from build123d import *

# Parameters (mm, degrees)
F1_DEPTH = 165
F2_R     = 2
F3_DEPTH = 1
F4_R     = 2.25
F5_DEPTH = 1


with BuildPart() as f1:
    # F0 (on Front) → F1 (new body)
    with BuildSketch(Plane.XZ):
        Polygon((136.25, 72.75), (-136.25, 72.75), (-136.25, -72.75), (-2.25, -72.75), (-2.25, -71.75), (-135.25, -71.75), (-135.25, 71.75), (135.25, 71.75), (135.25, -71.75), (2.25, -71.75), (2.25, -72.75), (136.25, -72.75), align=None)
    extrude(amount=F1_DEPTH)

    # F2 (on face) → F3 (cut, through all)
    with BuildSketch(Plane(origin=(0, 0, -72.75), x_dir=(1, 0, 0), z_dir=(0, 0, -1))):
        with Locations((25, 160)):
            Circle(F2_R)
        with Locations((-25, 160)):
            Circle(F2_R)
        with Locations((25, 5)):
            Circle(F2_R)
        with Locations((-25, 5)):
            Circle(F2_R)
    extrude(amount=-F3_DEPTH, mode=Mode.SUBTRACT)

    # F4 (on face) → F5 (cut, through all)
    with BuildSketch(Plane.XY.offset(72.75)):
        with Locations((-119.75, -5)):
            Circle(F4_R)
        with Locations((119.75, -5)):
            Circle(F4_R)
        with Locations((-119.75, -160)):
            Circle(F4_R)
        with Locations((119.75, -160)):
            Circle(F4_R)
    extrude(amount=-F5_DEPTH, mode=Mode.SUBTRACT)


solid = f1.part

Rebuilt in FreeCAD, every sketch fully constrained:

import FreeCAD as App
import Part
import Sketcher

doc = App.newDocument("Part")
body = doc.addObject("PartDesign::Body", "Body")

# Sketch on XZ plane
sketch1 = doc.addObject("Sketcher::SketchObject", "Sketch")
body.addObject(sketch1)
sketch1.AttachmentSupport = (doc.XZ_Plane, [""])
sketch1.MapMode = "FlatFace"
sketch1.addGeometry(Part.LineSegment(App.Vector(136.2, 72.8, 0), App.Vector(-136.2, 72.8, 0)), False)
sketch1.addGeometry(Part.LineSegment(App.Vector(-136.2, 72.8, 0), App.Vector(-136.2, -72.8, 0)), False)
sketch1.addGeometry(Part.LineSegment(App.Vector(-136.2, -72.8, 0), App.Vector(-2.2, -72.8, 0)), False)
sketch1.addGeometry(Part.LineSegment(App.Vector(-2.2, -72.8, 0), App.Vector(-2.2, -71.8, 0)), False)
sketch1.addGeometry(Part.LineSegment(App.Vector(-2.2, -71.8, 0), App.Vector(-135.2, -71.8, 0)), False)
sketch1.addGeometry(Part.LineSegment(App.Vector(-135.2, -71.8, 0), App.Vector(-135.2, 71.8, 0)), False)
sketch1.addGeometry(Part.LineSegment(App.Vector(-135.2, 71.8, 0), App.Vector(135.2, 71.8, 0)), False)
sketch1.addGeometry(Part.LineSegment(App.Vector(135.2, 71.8, 0), App.Vector(135.2, -71.8, 0)), False)
sketch1.addGeometry(Part.LineSegment(App.Vector(135.2, -71.8, 0), App.Vector(2.2, -71.8, 0)), False)
sketch1.addGeometry(Part.LineSegment(App.Vector(2.2, -71.8, 0), App.Vector(2.2, -72.8, 0)), False)
sketch1.addGeometry(Part.LineSegment(App.Vector(2.2, -72.8, 0), App.Vector(136.2, -72.8, 0)), False)
sketch1.addGeometry(Part.LineSegment(App.Vector(136.2, -72.8, 0), App.Vector(136.2, 72.8, 0)), False)
sketch1.addConstraint(Sketcher.Constraint("Coincident", 0, 2, 1, 1))
sketch1.addConstraint(Sketcher.Constraint("Coincident", 1, 2, 2, 1))
sketch1.addConstraint(Sketcher.Constraint("Coincident", 2, 2, 3, 1))
sketch1.addConstraint(Sketcher.Constraint("Coincident", 3, 2, 4, 1))
sketch1.addConstraint(Sketcher.Constraint("Coincident", 4, 2, 5, 1))
sketch1.addConstraint(Sketcher.Constraint("Coincident", 5, 2, 6, 1))
sketch1.addConstraint(Sketcher.Constraint("Coincident", 6, 2, 7, 1))
sketch1.addConstraint(Sketcher.Constraint("Coincident", 7, 2, 8, 1))
sketch1.addConstraint(Sketcher.Constraint("Coincident", 8, 2, 9, 1))
sketch1.addConstraint(Sketcher.Constraint("Coincident", 9, 2, 10, 1))
sketch1.addConstraint(Sketcher.Constraint("Coincident", 10, 2, 11, 1))
sketch1.addConstraint(Sketcher.Constraint("Coincident", 11, 2, 0, 1))
sketch1.addConstraint(Sketcher.Constraint("Horizontal", 0))
sketch1.addConstraint(Sketcher.Constraint("Vertical", 1))
sketch1.addConstraint(Sketcher.Constraint("Horizontal", 2))
sketch1.addConstraint(Sketcher.Constraint("Vertical", 3))
sketch1.addConstraint(Sketcher.Constraint("Horizontal", 4))
sketch1.addConstraint(Sketcher.Constraint("Vertical", 5))
sketch1.addConstraint(Sketcher.Constraint("Horizontal", 6))
sketch1.addConstraint(Sketcher.Constraint("Vertical", 7))
sketch1.addConstraint(Sketcher.Constraint("Horizontal", 8))
sketch1.addConstraint(Sketcher.Constraint("Vertical", 9))
sketch1.addConstraint(Sketcher.Constraint("Horizontal", 10))
sketch1.addConstraint(Sketcher.Constraint("Vertical", 11))
sketch1.addConstraint(Sketcher.Constraint("Symmetric", 4, 2, 6, 2, -1, 1))
sketch1.addConstraint(Sketcher.Constraint("Symmetric", 0, 2, 10, 2, -1, 1))
sketch1.addConstraint(Sketcher.Constraint("Symmetric", 3, 2, 8, 2, -2))
sketch1.addConstraint(Sketcher.Constraint("Horizontal", 2, 2, 9, 2))
sketch1.addConstraint(Sketcher.Constraint("DistanceX", 2, 1, 2, 2, 134.0))
sketch1.addConstraint(Sketcher.Constraint("DistanceX", 4, 2, 4, 1, 133.0))
sketch1.addConstraint(Sketcher.Constraint("DistanceY", 3, 1, 3, 2, 1.0))
sketch1.addConstraint(Sketcher.Constraint("DistanceX", 0, 2, 0, 1, 272.5))
sketch1.addConstraint(Sketcher.Constraint("DistanceY", 1, 2, 1, 1, 145.5))
pad1 = doc.addObject("PartDesign::Pad", "Pad")
body.addObject(pad1)
pad1.Profile = sketch1
pad1.Length = 165

# Sketch on XY plane
sketch2 = doc.addObject("Sketcher::SketchObject", "Sketch001")
body.addObject(sketch2)
sketch2.AttachmentSupport = (doc.XY_Plane, [""])
sketch2.MapMode = "FlatFace"
sketch2.AttachmentOffset = App.Placement(App.Vector(0, 0, -72.75), App.Rotation())
sketch2.addGeometry(Part.Circle(App.Vector(25, -160, 0), App.Vector(0, 0, 1), 2), False)
sketch2.addGeometry(Part.Circle(App.Vector(-25, -160, 0), App.Vector(0, 0, 1), 2), False)
sketch2.addGeometry(Part.Circle(App.Vector(25, -5, 0), App.Vector(0, 0, 1), 2), False)
sketch2.addGeometry(Part.Circle(App.Vector(-25, -5, 0), App.Vector(0, 0, 1), 2), False)
sketch2.addConstraint(Sketcher.Constraint("Equal", 0, 1))
sketch2.addConstraint(Sketcher.Constraint("Equal", 1, 2))
sketch2.addConstraint(Sketcher.Constraint("Equal", 2, 3))
sketch2.addConstraint(Sketcher.Constraint("Symmetric", 0, 3, 1, 3, -2))
sketch2.addConstraint(Sketcher.Constraint("Symmetric", 2, 3, 3, 3, -2))
sketch2.addConstraint(Sketcher.Constraint("Vertical", 0, 3, 2, 3))
sketch2.addConstraint(Sketcher.Constraint("Diameter", 0, 4.0))
sketch2.addConstraint(Sketcher.Constraint("DistanceX", -1, 1, 0, 3, 25.0))
sketch2.addConstraint(Sketcher.Constraint("DistanceY", 0, 3, -1, 1, 160.0))
sketch2.addConstraint(Sketcher.Constraint("DistanceY", 2, 3, -1, 1, 5.0))
pocket1 = doc.addObject("PartDesign::Pocket", "Pocket")
body.addObject(pocket1)
pocket1.Profile = sketch2
pocket1.Length = 1
pocket1.Reversed = True

# Sketch on XY plane
sketch3 = doc.addObject("Sketcher::SketchObject", "Sketch002")
body.addObject(sketch3)
sketch3.AttachmentSupport = (doc.XY_Plane, [""])
sketch3.MapMode = "FlatFace"
sketch3.AttachmentOffset = App.Placement(App.Vector(0, 0, 72.75), App.Rotation())
sketch3.addGeometry(Part.Circle(App.Vector(-119.8, -5, 0), App.Vector(0, 0, 1), 2.2), False)
sketch3.addGeometry(Part.Circle(App.Vector(119.8, -5, 0), App.Vector(0, 0, 1), 2.2), False)
sketch3.addGeometry(Part.Circle(App.Vector(-119.8, -160, 0), App.Vector(0, 0, 1), 2.2), False)
sketch3.addGeometry(Part.Circle(App.Vector(119.8, -160, 0), App.Vector(0, 0, 1), 2.2), False)
sketch3.addConstraint(Sketcher.Constraint("Equal", 0, 1))
sketch3.addConstraint(Sketcher.Constraint("Equal", 1, 2))
sketch3.addConstraint(Sketcher.Constraint("Equal", 2, 3))
sketch3.addConstraint(Sketcher.Constraint("Symmetric", 0, 3, 1, 3, -2))
sketch3.addConstraint(Sketcher.Constraint("Symmetric", 2, 3, 3, 3, -2))
sketch3.addConstraint(Sketcher.Constraint("Vertical", 0, 3, 2, 3))
sketch3.addConstraint(Sketcher.Constraint("Diameter", 0, 4.5))
sketch3.addConstraint(Sketcher.Constraint("DistanceY", 0, 3, -1, 1, 5.0))
sketch3.addConstraint(Sketcher.Constraint("DistanceY", 2, 3, -1, 1, 160.0))
sketch3.addConstraint(Sketcher.Constraint("DistanceX", 0, 3, 1, 3, 239.5))
pocket2 = doc.addObject("PartDesign::Pocket", "Pocket001")
body.addObject(pocket2)
pocket2.Profile = sketch3
pocket2.Length = 1

doc.recompute()
